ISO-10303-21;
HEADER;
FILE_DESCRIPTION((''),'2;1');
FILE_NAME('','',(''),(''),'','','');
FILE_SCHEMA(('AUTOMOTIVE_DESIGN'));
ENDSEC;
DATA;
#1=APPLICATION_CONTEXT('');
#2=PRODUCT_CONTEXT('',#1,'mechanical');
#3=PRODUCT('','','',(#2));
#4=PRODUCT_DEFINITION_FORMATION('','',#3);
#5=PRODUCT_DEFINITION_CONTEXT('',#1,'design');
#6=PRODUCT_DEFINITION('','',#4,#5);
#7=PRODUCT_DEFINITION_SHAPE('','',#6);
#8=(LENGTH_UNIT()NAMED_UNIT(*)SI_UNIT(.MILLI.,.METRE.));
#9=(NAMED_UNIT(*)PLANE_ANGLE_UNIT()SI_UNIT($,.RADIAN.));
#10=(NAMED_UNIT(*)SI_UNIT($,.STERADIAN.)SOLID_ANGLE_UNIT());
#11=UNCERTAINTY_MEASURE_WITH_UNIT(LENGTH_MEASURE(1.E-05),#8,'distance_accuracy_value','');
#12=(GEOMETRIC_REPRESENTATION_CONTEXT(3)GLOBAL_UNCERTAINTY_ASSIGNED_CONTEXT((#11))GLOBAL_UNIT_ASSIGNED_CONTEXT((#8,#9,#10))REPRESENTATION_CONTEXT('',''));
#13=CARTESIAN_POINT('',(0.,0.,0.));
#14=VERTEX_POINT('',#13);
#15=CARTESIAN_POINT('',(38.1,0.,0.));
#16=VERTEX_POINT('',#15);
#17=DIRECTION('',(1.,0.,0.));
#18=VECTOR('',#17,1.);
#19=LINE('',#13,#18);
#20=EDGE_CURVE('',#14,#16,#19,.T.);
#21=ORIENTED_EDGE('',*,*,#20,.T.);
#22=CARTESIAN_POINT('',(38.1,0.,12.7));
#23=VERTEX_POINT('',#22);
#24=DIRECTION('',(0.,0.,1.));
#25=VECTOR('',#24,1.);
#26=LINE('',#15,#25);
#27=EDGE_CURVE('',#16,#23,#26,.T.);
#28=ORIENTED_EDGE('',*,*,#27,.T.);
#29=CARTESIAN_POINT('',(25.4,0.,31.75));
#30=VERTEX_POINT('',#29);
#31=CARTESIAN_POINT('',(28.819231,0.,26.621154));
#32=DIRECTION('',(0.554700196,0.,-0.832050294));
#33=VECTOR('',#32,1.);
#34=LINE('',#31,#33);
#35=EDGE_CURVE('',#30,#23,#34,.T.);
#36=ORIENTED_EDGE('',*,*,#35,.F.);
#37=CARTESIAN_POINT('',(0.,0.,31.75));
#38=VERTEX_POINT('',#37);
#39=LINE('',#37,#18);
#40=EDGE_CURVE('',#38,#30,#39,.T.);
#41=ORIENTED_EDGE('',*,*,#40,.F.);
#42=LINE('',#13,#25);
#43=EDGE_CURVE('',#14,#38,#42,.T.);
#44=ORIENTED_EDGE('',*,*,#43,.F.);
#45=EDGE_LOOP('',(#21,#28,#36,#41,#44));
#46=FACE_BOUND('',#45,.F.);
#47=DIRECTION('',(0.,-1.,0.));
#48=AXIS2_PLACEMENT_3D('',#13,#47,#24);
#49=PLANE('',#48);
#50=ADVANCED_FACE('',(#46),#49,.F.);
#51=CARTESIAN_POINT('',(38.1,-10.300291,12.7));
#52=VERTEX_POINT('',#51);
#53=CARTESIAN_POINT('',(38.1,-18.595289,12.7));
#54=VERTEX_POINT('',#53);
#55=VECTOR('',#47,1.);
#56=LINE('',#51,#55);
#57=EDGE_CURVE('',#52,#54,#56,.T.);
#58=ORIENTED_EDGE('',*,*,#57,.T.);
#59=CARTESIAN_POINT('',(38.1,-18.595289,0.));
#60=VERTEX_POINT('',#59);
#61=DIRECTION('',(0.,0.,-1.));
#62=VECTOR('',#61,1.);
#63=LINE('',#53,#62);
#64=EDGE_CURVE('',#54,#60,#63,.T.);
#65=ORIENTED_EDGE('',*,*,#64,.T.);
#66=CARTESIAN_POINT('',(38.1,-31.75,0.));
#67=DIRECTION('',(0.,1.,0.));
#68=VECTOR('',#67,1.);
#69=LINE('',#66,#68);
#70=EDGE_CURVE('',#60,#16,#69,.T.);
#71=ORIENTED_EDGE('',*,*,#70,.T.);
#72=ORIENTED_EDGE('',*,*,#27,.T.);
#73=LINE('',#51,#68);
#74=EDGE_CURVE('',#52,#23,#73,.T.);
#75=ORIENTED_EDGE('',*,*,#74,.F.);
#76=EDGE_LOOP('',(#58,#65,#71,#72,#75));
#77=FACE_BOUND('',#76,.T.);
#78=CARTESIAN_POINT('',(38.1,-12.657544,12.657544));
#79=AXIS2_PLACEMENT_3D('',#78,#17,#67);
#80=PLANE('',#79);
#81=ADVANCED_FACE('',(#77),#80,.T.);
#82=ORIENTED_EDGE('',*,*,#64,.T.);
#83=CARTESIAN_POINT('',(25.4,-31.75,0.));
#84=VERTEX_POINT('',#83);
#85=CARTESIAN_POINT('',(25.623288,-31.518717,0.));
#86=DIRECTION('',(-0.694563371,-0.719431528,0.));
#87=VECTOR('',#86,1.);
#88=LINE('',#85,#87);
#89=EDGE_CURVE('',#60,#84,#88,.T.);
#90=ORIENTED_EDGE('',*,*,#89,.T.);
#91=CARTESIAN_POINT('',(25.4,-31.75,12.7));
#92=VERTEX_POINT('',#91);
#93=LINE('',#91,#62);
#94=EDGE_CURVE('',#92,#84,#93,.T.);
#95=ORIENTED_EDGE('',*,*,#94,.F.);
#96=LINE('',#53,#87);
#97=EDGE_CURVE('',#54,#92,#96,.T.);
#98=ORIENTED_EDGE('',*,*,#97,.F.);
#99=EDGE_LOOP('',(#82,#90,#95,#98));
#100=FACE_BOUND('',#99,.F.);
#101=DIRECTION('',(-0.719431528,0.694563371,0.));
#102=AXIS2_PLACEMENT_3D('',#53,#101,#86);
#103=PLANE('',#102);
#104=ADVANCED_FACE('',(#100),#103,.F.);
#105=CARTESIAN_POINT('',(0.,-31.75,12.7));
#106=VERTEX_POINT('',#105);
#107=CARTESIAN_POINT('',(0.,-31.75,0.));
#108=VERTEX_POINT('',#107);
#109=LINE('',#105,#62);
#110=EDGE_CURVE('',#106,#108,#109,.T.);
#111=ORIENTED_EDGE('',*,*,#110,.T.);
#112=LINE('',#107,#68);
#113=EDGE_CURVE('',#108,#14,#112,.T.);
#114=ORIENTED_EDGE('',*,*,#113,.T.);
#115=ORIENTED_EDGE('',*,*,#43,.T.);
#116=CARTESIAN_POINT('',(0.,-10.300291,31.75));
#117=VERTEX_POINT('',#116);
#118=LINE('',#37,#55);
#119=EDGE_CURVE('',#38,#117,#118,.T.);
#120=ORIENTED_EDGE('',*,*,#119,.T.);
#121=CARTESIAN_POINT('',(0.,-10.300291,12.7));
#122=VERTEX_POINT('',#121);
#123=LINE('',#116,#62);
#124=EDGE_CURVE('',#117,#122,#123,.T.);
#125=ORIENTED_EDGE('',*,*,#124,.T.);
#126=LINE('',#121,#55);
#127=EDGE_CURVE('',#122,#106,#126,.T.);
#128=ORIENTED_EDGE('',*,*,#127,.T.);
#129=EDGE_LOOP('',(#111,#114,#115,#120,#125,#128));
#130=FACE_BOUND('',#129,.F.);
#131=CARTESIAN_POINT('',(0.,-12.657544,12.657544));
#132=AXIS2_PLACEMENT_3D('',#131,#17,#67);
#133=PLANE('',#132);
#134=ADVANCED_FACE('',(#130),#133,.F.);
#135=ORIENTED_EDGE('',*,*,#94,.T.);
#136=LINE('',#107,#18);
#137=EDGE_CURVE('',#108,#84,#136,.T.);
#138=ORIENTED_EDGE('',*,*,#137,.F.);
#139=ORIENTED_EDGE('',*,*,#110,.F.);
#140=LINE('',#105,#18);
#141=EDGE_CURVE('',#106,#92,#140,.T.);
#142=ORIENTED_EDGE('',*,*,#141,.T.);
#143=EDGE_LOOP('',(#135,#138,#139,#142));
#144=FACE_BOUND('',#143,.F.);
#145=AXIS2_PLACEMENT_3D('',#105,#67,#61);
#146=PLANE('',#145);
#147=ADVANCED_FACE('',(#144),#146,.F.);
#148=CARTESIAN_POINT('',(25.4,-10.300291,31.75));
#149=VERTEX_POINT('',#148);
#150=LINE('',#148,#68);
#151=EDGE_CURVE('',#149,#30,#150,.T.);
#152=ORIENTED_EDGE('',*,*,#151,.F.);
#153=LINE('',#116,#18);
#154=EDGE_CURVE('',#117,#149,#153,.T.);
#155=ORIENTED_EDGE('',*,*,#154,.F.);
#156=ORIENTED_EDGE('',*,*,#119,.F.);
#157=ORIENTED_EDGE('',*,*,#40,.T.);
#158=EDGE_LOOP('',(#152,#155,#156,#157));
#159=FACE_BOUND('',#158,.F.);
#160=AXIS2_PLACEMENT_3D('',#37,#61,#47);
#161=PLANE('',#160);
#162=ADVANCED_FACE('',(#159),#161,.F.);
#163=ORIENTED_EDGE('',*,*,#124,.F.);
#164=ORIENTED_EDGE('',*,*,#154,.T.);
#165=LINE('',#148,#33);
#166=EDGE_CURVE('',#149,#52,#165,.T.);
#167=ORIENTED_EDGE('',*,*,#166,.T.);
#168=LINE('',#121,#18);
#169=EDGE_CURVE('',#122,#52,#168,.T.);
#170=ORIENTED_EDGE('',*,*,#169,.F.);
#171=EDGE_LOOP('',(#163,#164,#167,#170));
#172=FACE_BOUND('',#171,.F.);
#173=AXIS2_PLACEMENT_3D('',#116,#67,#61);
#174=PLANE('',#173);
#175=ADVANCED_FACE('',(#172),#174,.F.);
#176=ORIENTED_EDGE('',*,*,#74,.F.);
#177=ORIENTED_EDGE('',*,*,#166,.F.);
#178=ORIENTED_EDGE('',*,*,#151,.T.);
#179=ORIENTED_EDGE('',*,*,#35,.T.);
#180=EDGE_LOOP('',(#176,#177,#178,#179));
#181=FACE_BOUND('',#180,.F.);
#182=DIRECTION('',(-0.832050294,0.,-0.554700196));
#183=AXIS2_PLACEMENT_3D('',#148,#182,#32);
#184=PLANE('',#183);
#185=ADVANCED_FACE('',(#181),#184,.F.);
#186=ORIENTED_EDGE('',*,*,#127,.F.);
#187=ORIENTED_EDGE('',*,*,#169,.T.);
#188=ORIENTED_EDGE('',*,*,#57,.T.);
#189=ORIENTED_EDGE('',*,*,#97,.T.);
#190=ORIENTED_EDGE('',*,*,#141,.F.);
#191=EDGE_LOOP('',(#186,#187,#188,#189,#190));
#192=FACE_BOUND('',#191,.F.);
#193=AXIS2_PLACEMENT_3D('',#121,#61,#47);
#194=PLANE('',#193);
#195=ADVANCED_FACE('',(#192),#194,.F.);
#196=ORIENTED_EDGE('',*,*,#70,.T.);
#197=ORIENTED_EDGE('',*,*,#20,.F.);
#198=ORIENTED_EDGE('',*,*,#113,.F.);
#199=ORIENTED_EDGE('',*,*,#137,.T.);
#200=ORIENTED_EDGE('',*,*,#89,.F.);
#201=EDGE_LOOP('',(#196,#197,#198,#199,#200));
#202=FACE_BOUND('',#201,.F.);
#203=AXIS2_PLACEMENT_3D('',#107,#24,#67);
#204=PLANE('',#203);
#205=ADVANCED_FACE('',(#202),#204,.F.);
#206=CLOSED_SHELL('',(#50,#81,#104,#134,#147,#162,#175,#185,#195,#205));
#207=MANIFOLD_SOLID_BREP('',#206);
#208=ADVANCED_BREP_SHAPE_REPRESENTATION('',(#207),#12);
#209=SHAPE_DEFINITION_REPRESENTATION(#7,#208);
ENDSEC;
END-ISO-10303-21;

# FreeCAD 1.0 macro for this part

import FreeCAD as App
import Part
import Sketcher
Q = App.Units.Quantity


def add_polygon(sketch, points):
    """Adds a closed chain of lines whose ends are joined by coincident constraints."""
    first, n = sketch.GeometryCount, len(points)
    for a, b in zip(points, points[1:] + points[:1]):
        sketch.addGeometry(Part.LineSegment(App.Vector(*a, 0), App.Vector(*b, 0)), False)
    for i in range(n):
        sketch.addConstraint(Sketcher.Constraint("Coincident", first + i, 2, first + (i + 1) % n, 1))

doc = App.newDocument("Part")
body = doc.addObject("PartDesign::Body", "Body")

# Sketch on YZ plane
sketch1 = body.newObject("Sketcher::SketchObject", "Sketch")
sketch1.AttachmentSupport = (doc.getObject("YZ_Plane"), [""])
sketch1.MapMode = "FlatFace"
add_polygon(sketch1, [(-31.75, 0), (0, 0), (0, 31.75), (-10.300291, 31.75), (-10.300291, 12.7), (-31.75, 12.7)])  # lines 0-5
sketch1.addConstraint(Sketcher.Constraint("Horizontal", 0))
sketch1.addConstraint(Sketcher.Constraint("Vertical", 1))
sketch1.addConstraint(Sketcher.Constraint("Horizontal", 2))
sketch1.addConstraint(Sketcher.Constraint("Vertical", 3))
sketch1.addConstraint(Sketcher.Constraint("Horizontal", 4))
sketch1.addConstraint(Sketcher.Constraint("Vertical", 5))
sketch1.addConstraint(Sketcher.Constraint("Coincident", 0, 2, -1, 1))
sketch1.addConstraint(Sketcher.Constraint("Equal", 0, 1))
sketch1.addConstraint(Sketcher.Constraint("DistanceY", 5, 2, 5, 1, Q("0.5 in")))
sketch1.addConstraint(Sketcher.Constraint("DistanceX", 0, 1, 0, 2, Q("1.25 in")))
sketch1.addConstraint(Sketcher.Constraint("DistanceX", 2, 2, 2, 1, Q("10.300291 mm")))
pad1 = body.newObject("PartDesign::Pad", "Pad")
pad1.Profile = sketch1
pad1.Length = Q("1.5 in")

# Sketch on XZ plane
sketch2 = body.newObject("Sketcher::SketchObject", "Sketch001")
sketch2.AttachmentSupport = (doc.getObject("XZ_Plane"), [""])
sketch2.MapMode = "FlatFace"
sketch2.AttachmentOffset = App.Placement(App.Vector(0, 0, 10.300291), App.Rotation())
add_polygon(sketch2, [(38.1, 31.75), (25.4, 31.75), (38.1, 12.7)])  # lines 0-2
sketch2.addConstraint(Sketcher.Constraint("Horizontal", 0))
sketch2.addConstraint(Sketcher.Constraint("Vertical", 2))
sketch2.addConstraint(Sketcher.Constraint("DistanceX", 0, 2, 0, 1, Q("0.5 in")))
sketch2.addConstraint(Sketcher.Constraint("DistanceX", -1, 1, 0, 2, Q("1 in")))
sketch2.addConstraint(Sketcher.Constraint("DistanceY", 2, 1, 2, 2, Q("0.75 in")))
sketch2.addConstraint(Sketcher.Constraint("DistanceY", -1, 1, 1, 2, Q("0.5 in")))
pocket1 = body.newObject("PartDesign::Pocket", "Pocket")
pocket1.Profile = sketch2
pocket1.Type = "ThroughAll"

# Sketch on XY plane
sketch3 = body.newObject("Sketcher::SketchObject", "Sketch002")
sketch3.AttachmentSupport = (doc.getObject("XY_Plane"), [""])
sketch3.MapMode = "FlatFace"
sketch3.AttachmentOffset = App.Placement(App.Vector(0, 0, 0.5 * 25.4), App.Rotation())
add_polygon(sketch3, [(38.1, -31.75), (38.1, -18.595289), (25.4, -31.75)])  # lines 0-2
sketch3.addConstraint(Sketcher.Constraint("Vertical", 0))
sketch3.addConstraint(Sketcher.Constraint("Horizontal", 2))
sketch3.addConstraint(Sketcher.Constraint("DistanceX", 2, 1, 2, 2, Q("0.5 in")))
sketch3.addConstraint(Sketcher.Constraint("DistanceX", -1, 1, 1, 2, Q("1 in")))
sketch3.addConstraint(Sketcher.Constraint("DistanceY", 1, 2, -1, 1, Q("1.25 in")))
sketch3.addConstraint(Sketcher.Constraint("DistanceY", 0, 1, 0, 2, Q("13.154711 mm")))
pocket2 = body.newObject("PartDesign::Pocket", "Pocket001")
pocket2.Profile = sketch3
pocket2.Type = "ThroughAll"

doc.recompute()
